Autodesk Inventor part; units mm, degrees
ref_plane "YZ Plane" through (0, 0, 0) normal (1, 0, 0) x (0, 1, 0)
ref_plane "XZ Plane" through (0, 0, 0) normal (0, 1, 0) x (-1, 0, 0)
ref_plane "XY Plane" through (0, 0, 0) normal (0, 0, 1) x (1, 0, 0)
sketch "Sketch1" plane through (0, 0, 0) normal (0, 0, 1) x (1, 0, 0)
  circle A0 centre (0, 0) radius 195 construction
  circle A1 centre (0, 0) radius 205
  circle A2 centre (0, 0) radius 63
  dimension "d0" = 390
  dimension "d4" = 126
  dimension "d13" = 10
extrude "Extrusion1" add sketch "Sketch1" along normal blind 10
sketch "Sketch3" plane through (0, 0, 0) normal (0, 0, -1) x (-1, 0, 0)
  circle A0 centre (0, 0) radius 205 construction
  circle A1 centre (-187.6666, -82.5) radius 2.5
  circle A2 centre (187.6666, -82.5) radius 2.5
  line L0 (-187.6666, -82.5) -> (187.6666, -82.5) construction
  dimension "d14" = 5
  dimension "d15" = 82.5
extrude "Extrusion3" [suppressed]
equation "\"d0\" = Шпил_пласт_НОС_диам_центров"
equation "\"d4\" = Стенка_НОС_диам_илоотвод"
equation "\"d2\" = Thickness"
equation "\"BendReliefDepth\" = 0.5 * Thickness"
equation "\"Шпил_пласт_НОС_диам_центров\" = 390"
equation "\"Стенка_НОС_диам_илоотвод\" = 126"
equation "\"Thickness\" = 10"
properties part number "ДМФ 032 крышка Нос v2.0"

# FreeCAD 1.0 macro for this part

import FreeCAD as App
import Part
import Sketcher
Q = App.Units.Quantity

doc = App.newDocument("Part")
body = doc.addObject("PartDesign::Body", "Body")

sketch1 = body.newObject("Sketcher::SketchObject", "Sketch")
sketch1.AttachmentSupport = (doc.getObject("XY_Plane"), [""])
sketch1.MapMode = "FlatFace"
sketch1.addGeometry(Part.Circle(App.Vector(0, 0, 0), App.Vector(0, 0, 1), 205), False)
sketch1.addGeometry(Part.Circle(App.Vector(0, 0, 0), App.Vector(0, 0, 1), 63), False)
sketch1.addConstraint(Sketcher.Constraint("Coincident", 0, 3, -1, 1))
sketch1.addConstraint(Sketcher.Constraint("Coincident", 1, 3, -1, 1))
sketch1.addConstraint(Sketcher.Constraint("Diameter", 1, Q("126 mm")))
sketch1.addConstraint(Sketcher.Constraint("Diameter", 0, Q("410 mm")))
pad1 = body.newObject("PartDesign::Pad", "Pad")
pad1.Profile = sketch1
pad1.Length = 10

doc.recompute()
